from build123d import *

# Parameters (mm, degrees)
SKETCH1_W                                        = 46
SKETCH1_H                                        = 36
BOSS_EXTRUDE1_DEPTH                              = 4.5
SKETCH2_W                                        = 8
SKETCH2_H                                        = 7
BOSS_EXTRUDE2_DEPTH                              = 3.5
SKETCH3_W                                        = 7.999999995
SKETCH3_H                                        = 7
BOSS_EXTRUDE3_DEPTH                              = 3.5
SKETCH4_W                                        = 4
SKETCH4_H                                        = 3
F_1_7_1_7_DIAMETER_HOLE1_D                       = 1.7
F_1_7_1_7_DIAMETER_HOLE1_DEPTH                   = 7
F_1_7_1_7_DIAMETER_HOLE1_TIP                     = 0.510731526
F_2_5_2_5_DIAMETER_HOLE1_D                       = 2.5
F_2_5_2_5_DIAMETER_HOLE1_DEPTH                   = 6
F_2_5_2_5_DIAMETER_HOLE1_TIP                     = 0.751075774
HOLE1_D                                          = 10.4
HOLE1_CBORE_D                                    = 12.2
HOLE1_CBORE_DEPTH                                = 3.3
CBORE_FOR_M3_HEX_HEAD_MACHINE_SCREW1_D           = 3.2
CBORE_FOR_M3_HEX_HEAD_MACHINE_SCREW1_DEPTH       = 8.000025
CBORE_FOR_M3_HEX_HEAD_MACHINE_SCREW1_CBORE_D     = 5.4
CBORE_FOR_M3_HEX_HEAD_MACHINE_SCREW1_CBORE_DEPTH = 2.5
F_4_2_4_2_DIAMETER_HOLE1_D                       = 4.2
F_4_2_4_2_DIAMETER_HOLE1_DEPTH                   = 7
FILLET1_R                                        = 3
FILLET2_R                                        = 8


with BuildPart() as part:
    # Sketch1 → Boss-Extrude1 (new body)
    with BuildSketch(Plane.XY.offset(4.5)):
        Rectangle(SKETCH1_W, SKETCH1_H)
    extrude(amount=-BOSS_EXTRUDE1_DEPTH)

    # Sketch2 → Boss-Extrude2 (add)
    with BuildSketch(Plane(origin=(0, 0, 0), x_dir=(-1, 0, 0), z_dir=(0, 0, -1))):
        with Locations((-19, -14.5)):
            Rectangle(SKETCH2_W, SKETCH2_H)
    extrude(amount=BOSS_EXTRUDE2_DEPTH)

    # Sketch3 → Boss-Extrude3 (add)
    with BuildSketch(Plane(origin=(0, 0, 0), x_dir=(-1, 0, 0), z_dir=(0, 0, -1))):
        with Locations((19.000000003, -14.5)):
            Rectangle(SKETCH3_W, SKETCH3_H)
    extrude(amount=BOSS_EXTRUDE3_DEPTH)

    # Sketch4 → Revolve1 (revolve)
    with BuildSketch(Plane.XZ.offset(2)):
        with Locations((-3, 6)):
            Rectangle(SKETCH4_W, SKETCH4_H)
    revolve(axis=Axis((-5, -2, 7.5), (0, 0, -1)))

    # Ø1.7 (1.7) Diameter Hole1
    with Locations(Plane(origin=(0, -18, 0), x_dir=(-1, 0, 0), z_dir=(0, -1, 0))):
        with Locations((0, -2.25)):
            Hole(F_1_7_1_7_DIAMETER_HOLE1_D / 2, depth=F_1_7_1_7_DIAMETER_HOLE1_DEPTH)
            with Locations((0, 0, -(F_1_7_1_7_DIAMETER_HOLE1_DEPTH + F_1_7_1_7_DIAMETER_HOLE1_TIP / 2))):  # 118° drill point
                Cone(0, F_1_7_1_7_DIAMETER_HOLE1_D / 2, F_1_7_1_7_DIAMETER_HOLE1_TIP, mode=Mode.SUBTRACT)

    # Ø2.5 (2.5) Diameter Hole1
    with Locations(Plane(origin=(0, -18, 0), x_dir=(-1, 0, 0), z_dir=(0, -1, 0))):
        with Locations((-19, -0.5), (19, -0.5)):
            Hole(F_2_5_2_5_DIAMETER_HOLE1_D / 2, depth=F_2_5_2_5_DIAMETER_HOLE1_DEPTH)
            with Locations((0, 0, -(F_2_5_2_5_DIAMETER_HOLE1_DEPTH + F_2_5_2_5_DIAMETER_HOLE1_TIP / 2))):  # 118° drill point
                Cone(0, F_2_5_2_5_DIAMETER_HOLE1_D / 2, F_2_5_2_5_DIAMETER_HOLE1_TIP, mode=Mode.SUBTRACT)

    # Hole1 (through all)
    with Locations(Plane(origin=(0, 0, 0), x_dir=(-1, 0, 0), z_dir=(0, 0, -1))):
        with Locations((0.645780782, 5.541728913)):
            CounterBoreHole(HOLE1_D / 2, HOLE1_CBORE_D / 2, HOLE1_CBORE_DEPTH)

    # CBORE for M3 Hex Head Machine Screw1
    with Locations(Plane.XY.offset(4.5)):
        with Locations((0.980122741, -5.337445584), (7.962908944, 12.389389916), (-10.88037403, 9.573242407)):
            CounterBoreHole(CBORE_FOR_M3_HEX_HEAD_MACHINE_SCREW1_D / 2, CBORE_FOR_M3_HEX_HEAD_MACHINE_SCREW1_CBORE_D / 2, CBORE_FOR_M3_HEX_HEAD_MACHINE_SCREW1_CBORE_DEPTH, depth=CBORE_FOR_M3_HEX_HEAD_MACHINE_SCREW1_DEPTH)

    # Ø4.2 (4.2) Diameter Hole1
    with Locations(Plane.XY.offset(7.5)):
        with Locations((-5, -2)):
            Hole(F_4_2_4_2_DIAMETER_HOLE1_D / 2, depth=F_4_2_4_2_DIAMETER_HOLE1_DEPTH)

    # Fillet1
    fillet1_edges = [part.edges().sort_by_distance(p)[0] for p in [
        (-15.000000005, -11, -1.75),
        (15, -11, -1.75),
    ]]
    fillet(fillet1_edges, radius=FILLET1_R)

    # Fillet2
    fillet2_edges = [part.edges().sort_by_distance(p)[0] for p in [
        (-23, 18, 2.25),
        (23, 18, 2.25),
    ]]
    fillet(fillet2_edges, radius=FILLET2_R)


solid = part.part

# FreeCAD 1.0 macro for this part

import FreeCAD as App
import Part
import Sketcher
Q = App.Units.Quantity


def edges_at(feature, points):
    """Names of the edges that pass closest to the given points."""
    edges = feature.Shape.Edges
    near = lambda p: min(range(len(edges)), key=lambda i: edges[i].distToShape(Part.Vertex(*p))[0])
    return sorted({f"Edge{near(p) + 1}" for p in points})


def add_polygon(sketch, points):
    """Adds a closed chain of lines whose ends are joined by coincident constraints."""
    first, n = sketch.GeometryCount, len(points)
    for a, b in zip(points, points[1:] + points[:1]):
        sketch.addGeometry(Part.LineSegment(App.Vector(*a, 0), App.Vector(*b, 0)), False)
    for i in range(n):
        sketch.addConstraint(Sketcher.Constraint("Coincident", first + i, 2, first + (i + 1) % n, 1))

doc = App.newDocument("Part")
body = doc.addObject("PartDesign::Body", "Body")

sketch1 = doc.addObject("Sketcher::SketchObject", "Sketch")
body.addObject(sketch1)
sketch1.AttachmentSupport = (doc.XY_Plane, [""])
sketch1.MapMode = "FlatFace"
sketch1.AttachmentOffset = App.Placement(App.Vector(0, 0, 4.5), App.Rotation())
add_polygon(sketch1, [(-23, 18), (-23, -18), (23, -18), (23, 18)])
sketch1.addConstraint(Sketcher.Constraint("Vertical", 0))
sketch1.addConstraint(Sketcher.Constraint("Horizontal", 1))
sketch1.addConstraint(Sketcher.Constraint("Vertical", 2))
sketch1.addConstraint(Sketcher.Constraint("Horizontal", 3))
sketch1.addConstraint(Sketcher.Constraint("Symmetric", 0, 2, 2, 2, -1, 1))
sketch1.addConstraint(Sketcher.Constraint("DistanceX", 1, 1, 1, 2, Q("46 mm")))
sketch1.addConstraint(Sketcher.Constraint("DistanceY", 0, 2, 0, 1, Q("36 mm")))
pad1 = doc.addObject("PartDesign::Pad", "Pad")
body.addObject(pad1)
pad1.Profile = sketch1
pad1.Length = 4.5
pad1.Reversed = True

sketch2 = doc.addObject("Sketcher::SketchObject", "Sketch001")
body.addObject(sketch2)
sketch2.AttachmentSupport = (doc.XY_Plane, [""])
sketch2.MapMode = "FlatFace"
add_polygon(sketch2, [(23, -11), (23, -18), (15, -18), (15, -11)])
sketch2.addConstraint(Sketcher.Constraint("Vertical", 0))
sketch2.addConstraint(Sketcher.Constraint("Horizontal", 1))
sketch2.addConstraint(Sketcher.Constraint("Vertical", 2))
sketch2.addConstraint(Sketcher.Constraint("Horizontal", 3))
sketch2.addConstraint(Sketcher.Constraint("DistanceX", 1, 2, 1, 1, Q("8 mm")))
sketch2.addConstraint(Sketcher.Constraint("DistanceY", 0, 2, 0, 1, Q("7 mm")))
sketch2.addConstraint(Sketcher.Constraint("DistanceX", -1, 1, 0, 2, Q("23 mm")))
sketch2.addConstraint(Sketcher.Constraint("DistanceY", 0, 2, -1, 1, Q("18 mm")))
pad2 = doc.addObject("PartDesign::Pad", "Pad001")
body.addObject(pad2)
pad2.Profile = sketch2
pad2.Length = 3.5
pad2.Reversed = True

sketch3 = doc.addObject("Sketcher::SketchObject", "Sketch002")
body.addObject(sketch3)
sketch3.AttachmentSupport = (doc.XY_Plane, [""])
sketch3.MapMode = "FlatFace"
add_polygon(sketch3, [(-15, -11), (-15, -18), (-23, -18), (-23, -11)])
sketch3.addConstraint(Sketcher.Constraint("Vertical", 0))
sketch3.addConstraint(Sketcher.Constraint("Horizontal", 1))
sketch3.addConstraint(Sketcher.Constraint("Vertical", 2))
sketch3.addConstraint(Sketcher.Constraint("Horizontal", 3))
sketch3.addConstraint(Sketcher.Constraint("DistanceX", 1, 2, 1, 1, Q("8 mm")))
sketch3.addConstraint(Sketcher.Constraint("DistanceY", 0, 2, 0, 1, Q("7 mm")))
sketch3.addConstraint(Sketcher.Constraint("DistanceX", 0, 2, -1, 1, Q("15 mm")))
sketch3.addConstraint(Sketcher.Constraint("DistanceY", 0, 2, -1, 1, Q("18 mm")))
pad3 = doc.addObject("PartDesign::Pad", "Pad002")
body.addObject(pad3)
pad3.Profile = sketch3
pad3.Length = 3.5
pad3.Reversed = True

sketch4 = doc.addObject("Sketcher::SketchObject", "Sketch003")
body.addObject(sketch4)
sketch4.AttachmentSupport = (doc.XZ_Plane, [""])
sketch4.MapMode = "FlatFace"
sketch4.AttachmentOffset = App.Placement(App.Vector(0, 0, 2), App.Rotation())
add_polygon(sketch4, [(-5, 7.5), (-5, 4.5), (-1, 4.5), (-1, 7.5)])
sketch4.addGeometry(Part.LineSegment(App.Vector(-5, 7.5, 0), App.Vector(-5, 4.5, 0)), True)
sketch4.addConstraint(Sketcher.Constraint("Vertical", 0))
sketch4.addConstraint(Sketcher.Constraint("Horizontal", 1))
sketch4.addConstraint(Sketcher.Constraint("Vertical", 2))
sketch4.addConstraint(Sketcher.Constraint("Horizontal", 3))
sketch4.addConstraint(Sketcher.Constraint("Vertical", 4))
sketch4.addConstraint(Sketcher.Constraint("Coincident", 4, 1, 3, 2))
sketch4.addConstraint(Sketcher.Constraint("Horizontal", 1, 2, 4, 2))
sketch4.addConstraint(Sketcher.Constraint("DistanceX", 1, 1, 1, 2, Q("4 mm")))
sketch4.addConstraint(Sketcher.Constraint("DistanceY", 0, 2, 0, 1, Q("3 mm")))
sketch4.addConstraint(Sketcher.Constraint("DistanceX", 0, 2, -1, 1, Q("5 mm")))
sketch4.addConstraint(Sketcher.Constraint("DistanceY", -1, 1, 0, 2, Q("4.5 mm")))
revolution = doc.addObject("PartDesign::Revolution", "Revolution")
body.addObject(revolution)
revolution.Profile = sketch4
revolution.ReferenceAxis = (sketch4, ["Axis0"])
revolution.Angle = 360

sketch5 = doc.addObject("Sketcher::SketchObject", "Sketch004")
body.addObject(sketch5)
sketch5.AttachmentSupport = (doc.XZ_Plane, [""])
sketch5.MapMode = "FlatFace"
sketch5.AttachmentOffset = App.Placement(App.Vector(0, 0, 18), App.Rotation())
sketch5.addGeometry(Part.Circle(App.Vector(0, 2.25, 0), App.Vector(0, 0, 1), 0.85), False)
sketch5.addConstraint(Sketcher.Constraint("PointOnObject", 0, 3, -2))
sketch5.addConstraint(Sketcher.Constraint("Diameter", 0, Q("1.7 mm")))
sketch5.addConstraint(Sketcher.Constraint("DistanceY", -1, 1, 0, 3, Q("2.25 mm")))
doc.recompute()
hole = doc.addObject("PartDesign::Hole", "Hole")
body.addObject(hole)
hole.Profile = sketch5
hole.ThreadType = "None"
hole.Diameter = 1.7
hole.DepthType = "Dimension"
hole.Depth = 7
hole.DrillPoint = "Angled"
hole.DrillPointAngle = 118

sketch6 = doc.addObject("Sketcher::SketchObject", "Sketch005")
body.addObject(sketch6)
sketch6.AttachmentSupport = (doc.XZ_Plane, [""])
sketch6.MapMode = "FlatFace"
sketch6.AttachmentOffset = App.Placement(App.Vector(0, 0, 18), App.Rotation())
sketch6.addGeometry(Part.Circle(App.Vector(19, 0.5, 0), App.Vector(0, 0, 1), 1.25), False)
sketch6.addGeometry(Part.Circle(App.Vector(-19, 0.5, 0), App.Vector(0, 0, 1), 1.25), False)
sketch6.addConstraint(Sketcher.Constraint("Equal", 0, 1))
sketch6.addConstraint(Sketcher.Constraint("Symmetric", 0, 3, 1, 3, -2))
sketch6.addConstraint(Sketcher.Constraint("Diameter", 0, Q("2.5 mm")))
sketch6.addConstraint(Sketcher.Constraint("DistanceX", -1, 1, 0, 3, Q("19 mm")))
sketch6.addConstraint(Sketcher.Constraint("DistanceY", -1, 1, 0, 3, Q("0.5 mm")))
doc.recompute()
hole2 = doc.addObject("PartDesign::Hole", "Hole001")
body.addObject(hole2)
hole2.Profile = sketch6
hole2.ThreadType = "None"
hole2.Diameter = 2.5
hole2.DepthType = "Dimension"
hole2.Depth = 6
hole2.DrillPoint = "Angled"
hole2.DrillPointAngle = 118

sketch7 = doc.addObject("Sketcher::SketchObject", "Sketch006")
body.addObject(sketch7)
sketch7.AttachmentSupport = (doc.XY_Plane, [""])
sketch7.MapMode = "FlatFace"
sketch7.addGeometry(Part.Circle(App.Vector(-0.645781, 5.541729, 0), App.Vector(0, 0, 1), 5.2), False)
sketch7.addConstraint(Sketcher.Constraint("Diameter", 0, Q("10.4 mm")))
sketch7.addConstraint(Sketcher.Constraint("DistanceX", 0, 3, -1, 1, Q("0.645781 mm")))
sketch7.addConstraint(Sketcher.Constraint("DistanceY", -1, 1, 0, 3, Q("5.541729 mm")))
doc.recompute()
hole3 = doc.addObject("PartDesign::Hole", "Hole002")
body.addObject(hole3)
hole3.Profile = sketch7
hole3.ThreadType = "None"
hole3.Diameter = 10.4
hole3.DepthType = "ThroughAll"
hole3.HoleCutType = "Counterbore"
hole3.HoleCutDiameter = 12.2
hole3.HoleCutDepth = 3.3
hole3.Reversed = True

sketch8 = doc.addObject("Sketcher::SketchObject", "Sketch007")
body.addObject(sketch8)
sketch8.AttachmentSupport = (doc.XY_Plane, [""])
sketch8.MapMode = "FlatFace"
sketch8.AttachmentOffset = App.Placement(App.Vector(0, 0, 4.5), App.Rotation())
sketch8.addGeometry(Part.Circle(App.Vector(0.980123, -5.337446, 0), App.Vector(0, 0, 1), 1.6), False)
sketch8.addGeometry(Part.Circle(App.Vector(7.962909, 12.38939, 0), App.Vector(0, 0, 1), 1.6), False)
sketch8.addGeometry(Part.Circle(App.Vector(-10.880374, 9.573242, 0), App.Vector(0, 0, 1), 1.6), False)
sketch8.addConstraint(Sketcher.Constraint("Equal", 0, 1))
sketch8.addConstraint(Sketcher.Constraint("Equal", 1, 2))
sketch8.addConstraint(Sketcher.Constraint("Diameter", 0, Q("3.2 mm")))
sketch8.addConstraint(Sketcher.Constraint("DistanceX", -1, 1, 1, 3, Q("7.962909 mm")))
sketch8.addConstraint(Sketcher.Constraint("DistanceY", -1, 1, 1, 3, Q("12.38939 mm")))
sketch8.addConstraint(Sketcher.Constraint("DistanceX", -1, 1, 0, 3, Q("0.980123 mm")))
sketch8.addConstraint(Sketcher.Constraint("DistanceY", 0, 3, -1, 1, Q("5.337446 mm")))
sketch8.addConstraint(Sketcher.Constraint("DistanceX", 2, 3, -1, 1, Q("10.880374 mm")))
sketch8.addConstraint(Sketcher.Constraint("DistanceY", -1, 1, 2, 3, Q("9.573242 mm")))
doc.recompute()
hole4 = doc.addObject("PartDesign::Hole", "Hole003")
body.addObject(hole4)
hole4.Profile = sketch8
hole4.ThreadType = "None"
hole4.Diameter = 3.2
hole4.DepthType = "Dimension"
hole4.Depth = 8.000025
hole4.DrillPoint = "Flat"
hole4.HoleCutType = "Counterbore"
hole4.HoleCutDiameter = 5.4
hole4.HoleCutDepth = 2.5

sketch9 = doc.addObject("Sketcher::SketchObject", "Sketch008")
body.addObject(sketch9)
sketch9.AttachmentSupport = (doc.XY_Plane, [""])
sketch9.MapMode = "FlatFace"
sketch9.AttachmentOffset = App.Placement(App.Vector(0, 0, 7.5), App.Rotation())
sketch9.addGeometry(Part.Circle(App.Vector(-5, -2, 0), App.Vector(0, 0, 1), 2.1), False)
sketch9.addConstraint(Sketcher.Constraint("Diameter", 0, Q("4.2 mm")))
sketch9.addConstraint(Sketcher.Constraint("DistanceX", 0, 3, -1, 1, Q("5 mm")))
sketch9.addConstraint(Sketcher.Constraint("DistanceY", 0, 3, -1, 1, Q("2 mm")))
doc.recompute()
hole5 = doc.addObject("PartDesign::Hole", "Hole004")
body.addObject(hole5)
hole5.Profile = sketch9
hole5.ThreadType = "None"
hole5.Diameter = 4.2
hole5.DepthType = "Dimension"
hole5.Depth = 7
hole5.DrillPoint = "Flat"
doc.recompute()

fillet = doc.addObject("PartDesign::Fillet", "Fillet")
body.addObject(fillet)
fillet.Base = (hole5, edges_at(hole5, [(-15, -11, -1.75), (15, -11, -1.75)]))
fillet.Radius = 3
doc.recompute()

fillet2 = doc.addObject("PartDesign::Fillet", "Fillet001")
body.addObject(fillet2)
fillet2.Base = (fillet, edges_at(fillet, [(-23, 18, 2.25), (23, 18, 2.25)]))
fillet2.Radius = 8

doc.recompute()
